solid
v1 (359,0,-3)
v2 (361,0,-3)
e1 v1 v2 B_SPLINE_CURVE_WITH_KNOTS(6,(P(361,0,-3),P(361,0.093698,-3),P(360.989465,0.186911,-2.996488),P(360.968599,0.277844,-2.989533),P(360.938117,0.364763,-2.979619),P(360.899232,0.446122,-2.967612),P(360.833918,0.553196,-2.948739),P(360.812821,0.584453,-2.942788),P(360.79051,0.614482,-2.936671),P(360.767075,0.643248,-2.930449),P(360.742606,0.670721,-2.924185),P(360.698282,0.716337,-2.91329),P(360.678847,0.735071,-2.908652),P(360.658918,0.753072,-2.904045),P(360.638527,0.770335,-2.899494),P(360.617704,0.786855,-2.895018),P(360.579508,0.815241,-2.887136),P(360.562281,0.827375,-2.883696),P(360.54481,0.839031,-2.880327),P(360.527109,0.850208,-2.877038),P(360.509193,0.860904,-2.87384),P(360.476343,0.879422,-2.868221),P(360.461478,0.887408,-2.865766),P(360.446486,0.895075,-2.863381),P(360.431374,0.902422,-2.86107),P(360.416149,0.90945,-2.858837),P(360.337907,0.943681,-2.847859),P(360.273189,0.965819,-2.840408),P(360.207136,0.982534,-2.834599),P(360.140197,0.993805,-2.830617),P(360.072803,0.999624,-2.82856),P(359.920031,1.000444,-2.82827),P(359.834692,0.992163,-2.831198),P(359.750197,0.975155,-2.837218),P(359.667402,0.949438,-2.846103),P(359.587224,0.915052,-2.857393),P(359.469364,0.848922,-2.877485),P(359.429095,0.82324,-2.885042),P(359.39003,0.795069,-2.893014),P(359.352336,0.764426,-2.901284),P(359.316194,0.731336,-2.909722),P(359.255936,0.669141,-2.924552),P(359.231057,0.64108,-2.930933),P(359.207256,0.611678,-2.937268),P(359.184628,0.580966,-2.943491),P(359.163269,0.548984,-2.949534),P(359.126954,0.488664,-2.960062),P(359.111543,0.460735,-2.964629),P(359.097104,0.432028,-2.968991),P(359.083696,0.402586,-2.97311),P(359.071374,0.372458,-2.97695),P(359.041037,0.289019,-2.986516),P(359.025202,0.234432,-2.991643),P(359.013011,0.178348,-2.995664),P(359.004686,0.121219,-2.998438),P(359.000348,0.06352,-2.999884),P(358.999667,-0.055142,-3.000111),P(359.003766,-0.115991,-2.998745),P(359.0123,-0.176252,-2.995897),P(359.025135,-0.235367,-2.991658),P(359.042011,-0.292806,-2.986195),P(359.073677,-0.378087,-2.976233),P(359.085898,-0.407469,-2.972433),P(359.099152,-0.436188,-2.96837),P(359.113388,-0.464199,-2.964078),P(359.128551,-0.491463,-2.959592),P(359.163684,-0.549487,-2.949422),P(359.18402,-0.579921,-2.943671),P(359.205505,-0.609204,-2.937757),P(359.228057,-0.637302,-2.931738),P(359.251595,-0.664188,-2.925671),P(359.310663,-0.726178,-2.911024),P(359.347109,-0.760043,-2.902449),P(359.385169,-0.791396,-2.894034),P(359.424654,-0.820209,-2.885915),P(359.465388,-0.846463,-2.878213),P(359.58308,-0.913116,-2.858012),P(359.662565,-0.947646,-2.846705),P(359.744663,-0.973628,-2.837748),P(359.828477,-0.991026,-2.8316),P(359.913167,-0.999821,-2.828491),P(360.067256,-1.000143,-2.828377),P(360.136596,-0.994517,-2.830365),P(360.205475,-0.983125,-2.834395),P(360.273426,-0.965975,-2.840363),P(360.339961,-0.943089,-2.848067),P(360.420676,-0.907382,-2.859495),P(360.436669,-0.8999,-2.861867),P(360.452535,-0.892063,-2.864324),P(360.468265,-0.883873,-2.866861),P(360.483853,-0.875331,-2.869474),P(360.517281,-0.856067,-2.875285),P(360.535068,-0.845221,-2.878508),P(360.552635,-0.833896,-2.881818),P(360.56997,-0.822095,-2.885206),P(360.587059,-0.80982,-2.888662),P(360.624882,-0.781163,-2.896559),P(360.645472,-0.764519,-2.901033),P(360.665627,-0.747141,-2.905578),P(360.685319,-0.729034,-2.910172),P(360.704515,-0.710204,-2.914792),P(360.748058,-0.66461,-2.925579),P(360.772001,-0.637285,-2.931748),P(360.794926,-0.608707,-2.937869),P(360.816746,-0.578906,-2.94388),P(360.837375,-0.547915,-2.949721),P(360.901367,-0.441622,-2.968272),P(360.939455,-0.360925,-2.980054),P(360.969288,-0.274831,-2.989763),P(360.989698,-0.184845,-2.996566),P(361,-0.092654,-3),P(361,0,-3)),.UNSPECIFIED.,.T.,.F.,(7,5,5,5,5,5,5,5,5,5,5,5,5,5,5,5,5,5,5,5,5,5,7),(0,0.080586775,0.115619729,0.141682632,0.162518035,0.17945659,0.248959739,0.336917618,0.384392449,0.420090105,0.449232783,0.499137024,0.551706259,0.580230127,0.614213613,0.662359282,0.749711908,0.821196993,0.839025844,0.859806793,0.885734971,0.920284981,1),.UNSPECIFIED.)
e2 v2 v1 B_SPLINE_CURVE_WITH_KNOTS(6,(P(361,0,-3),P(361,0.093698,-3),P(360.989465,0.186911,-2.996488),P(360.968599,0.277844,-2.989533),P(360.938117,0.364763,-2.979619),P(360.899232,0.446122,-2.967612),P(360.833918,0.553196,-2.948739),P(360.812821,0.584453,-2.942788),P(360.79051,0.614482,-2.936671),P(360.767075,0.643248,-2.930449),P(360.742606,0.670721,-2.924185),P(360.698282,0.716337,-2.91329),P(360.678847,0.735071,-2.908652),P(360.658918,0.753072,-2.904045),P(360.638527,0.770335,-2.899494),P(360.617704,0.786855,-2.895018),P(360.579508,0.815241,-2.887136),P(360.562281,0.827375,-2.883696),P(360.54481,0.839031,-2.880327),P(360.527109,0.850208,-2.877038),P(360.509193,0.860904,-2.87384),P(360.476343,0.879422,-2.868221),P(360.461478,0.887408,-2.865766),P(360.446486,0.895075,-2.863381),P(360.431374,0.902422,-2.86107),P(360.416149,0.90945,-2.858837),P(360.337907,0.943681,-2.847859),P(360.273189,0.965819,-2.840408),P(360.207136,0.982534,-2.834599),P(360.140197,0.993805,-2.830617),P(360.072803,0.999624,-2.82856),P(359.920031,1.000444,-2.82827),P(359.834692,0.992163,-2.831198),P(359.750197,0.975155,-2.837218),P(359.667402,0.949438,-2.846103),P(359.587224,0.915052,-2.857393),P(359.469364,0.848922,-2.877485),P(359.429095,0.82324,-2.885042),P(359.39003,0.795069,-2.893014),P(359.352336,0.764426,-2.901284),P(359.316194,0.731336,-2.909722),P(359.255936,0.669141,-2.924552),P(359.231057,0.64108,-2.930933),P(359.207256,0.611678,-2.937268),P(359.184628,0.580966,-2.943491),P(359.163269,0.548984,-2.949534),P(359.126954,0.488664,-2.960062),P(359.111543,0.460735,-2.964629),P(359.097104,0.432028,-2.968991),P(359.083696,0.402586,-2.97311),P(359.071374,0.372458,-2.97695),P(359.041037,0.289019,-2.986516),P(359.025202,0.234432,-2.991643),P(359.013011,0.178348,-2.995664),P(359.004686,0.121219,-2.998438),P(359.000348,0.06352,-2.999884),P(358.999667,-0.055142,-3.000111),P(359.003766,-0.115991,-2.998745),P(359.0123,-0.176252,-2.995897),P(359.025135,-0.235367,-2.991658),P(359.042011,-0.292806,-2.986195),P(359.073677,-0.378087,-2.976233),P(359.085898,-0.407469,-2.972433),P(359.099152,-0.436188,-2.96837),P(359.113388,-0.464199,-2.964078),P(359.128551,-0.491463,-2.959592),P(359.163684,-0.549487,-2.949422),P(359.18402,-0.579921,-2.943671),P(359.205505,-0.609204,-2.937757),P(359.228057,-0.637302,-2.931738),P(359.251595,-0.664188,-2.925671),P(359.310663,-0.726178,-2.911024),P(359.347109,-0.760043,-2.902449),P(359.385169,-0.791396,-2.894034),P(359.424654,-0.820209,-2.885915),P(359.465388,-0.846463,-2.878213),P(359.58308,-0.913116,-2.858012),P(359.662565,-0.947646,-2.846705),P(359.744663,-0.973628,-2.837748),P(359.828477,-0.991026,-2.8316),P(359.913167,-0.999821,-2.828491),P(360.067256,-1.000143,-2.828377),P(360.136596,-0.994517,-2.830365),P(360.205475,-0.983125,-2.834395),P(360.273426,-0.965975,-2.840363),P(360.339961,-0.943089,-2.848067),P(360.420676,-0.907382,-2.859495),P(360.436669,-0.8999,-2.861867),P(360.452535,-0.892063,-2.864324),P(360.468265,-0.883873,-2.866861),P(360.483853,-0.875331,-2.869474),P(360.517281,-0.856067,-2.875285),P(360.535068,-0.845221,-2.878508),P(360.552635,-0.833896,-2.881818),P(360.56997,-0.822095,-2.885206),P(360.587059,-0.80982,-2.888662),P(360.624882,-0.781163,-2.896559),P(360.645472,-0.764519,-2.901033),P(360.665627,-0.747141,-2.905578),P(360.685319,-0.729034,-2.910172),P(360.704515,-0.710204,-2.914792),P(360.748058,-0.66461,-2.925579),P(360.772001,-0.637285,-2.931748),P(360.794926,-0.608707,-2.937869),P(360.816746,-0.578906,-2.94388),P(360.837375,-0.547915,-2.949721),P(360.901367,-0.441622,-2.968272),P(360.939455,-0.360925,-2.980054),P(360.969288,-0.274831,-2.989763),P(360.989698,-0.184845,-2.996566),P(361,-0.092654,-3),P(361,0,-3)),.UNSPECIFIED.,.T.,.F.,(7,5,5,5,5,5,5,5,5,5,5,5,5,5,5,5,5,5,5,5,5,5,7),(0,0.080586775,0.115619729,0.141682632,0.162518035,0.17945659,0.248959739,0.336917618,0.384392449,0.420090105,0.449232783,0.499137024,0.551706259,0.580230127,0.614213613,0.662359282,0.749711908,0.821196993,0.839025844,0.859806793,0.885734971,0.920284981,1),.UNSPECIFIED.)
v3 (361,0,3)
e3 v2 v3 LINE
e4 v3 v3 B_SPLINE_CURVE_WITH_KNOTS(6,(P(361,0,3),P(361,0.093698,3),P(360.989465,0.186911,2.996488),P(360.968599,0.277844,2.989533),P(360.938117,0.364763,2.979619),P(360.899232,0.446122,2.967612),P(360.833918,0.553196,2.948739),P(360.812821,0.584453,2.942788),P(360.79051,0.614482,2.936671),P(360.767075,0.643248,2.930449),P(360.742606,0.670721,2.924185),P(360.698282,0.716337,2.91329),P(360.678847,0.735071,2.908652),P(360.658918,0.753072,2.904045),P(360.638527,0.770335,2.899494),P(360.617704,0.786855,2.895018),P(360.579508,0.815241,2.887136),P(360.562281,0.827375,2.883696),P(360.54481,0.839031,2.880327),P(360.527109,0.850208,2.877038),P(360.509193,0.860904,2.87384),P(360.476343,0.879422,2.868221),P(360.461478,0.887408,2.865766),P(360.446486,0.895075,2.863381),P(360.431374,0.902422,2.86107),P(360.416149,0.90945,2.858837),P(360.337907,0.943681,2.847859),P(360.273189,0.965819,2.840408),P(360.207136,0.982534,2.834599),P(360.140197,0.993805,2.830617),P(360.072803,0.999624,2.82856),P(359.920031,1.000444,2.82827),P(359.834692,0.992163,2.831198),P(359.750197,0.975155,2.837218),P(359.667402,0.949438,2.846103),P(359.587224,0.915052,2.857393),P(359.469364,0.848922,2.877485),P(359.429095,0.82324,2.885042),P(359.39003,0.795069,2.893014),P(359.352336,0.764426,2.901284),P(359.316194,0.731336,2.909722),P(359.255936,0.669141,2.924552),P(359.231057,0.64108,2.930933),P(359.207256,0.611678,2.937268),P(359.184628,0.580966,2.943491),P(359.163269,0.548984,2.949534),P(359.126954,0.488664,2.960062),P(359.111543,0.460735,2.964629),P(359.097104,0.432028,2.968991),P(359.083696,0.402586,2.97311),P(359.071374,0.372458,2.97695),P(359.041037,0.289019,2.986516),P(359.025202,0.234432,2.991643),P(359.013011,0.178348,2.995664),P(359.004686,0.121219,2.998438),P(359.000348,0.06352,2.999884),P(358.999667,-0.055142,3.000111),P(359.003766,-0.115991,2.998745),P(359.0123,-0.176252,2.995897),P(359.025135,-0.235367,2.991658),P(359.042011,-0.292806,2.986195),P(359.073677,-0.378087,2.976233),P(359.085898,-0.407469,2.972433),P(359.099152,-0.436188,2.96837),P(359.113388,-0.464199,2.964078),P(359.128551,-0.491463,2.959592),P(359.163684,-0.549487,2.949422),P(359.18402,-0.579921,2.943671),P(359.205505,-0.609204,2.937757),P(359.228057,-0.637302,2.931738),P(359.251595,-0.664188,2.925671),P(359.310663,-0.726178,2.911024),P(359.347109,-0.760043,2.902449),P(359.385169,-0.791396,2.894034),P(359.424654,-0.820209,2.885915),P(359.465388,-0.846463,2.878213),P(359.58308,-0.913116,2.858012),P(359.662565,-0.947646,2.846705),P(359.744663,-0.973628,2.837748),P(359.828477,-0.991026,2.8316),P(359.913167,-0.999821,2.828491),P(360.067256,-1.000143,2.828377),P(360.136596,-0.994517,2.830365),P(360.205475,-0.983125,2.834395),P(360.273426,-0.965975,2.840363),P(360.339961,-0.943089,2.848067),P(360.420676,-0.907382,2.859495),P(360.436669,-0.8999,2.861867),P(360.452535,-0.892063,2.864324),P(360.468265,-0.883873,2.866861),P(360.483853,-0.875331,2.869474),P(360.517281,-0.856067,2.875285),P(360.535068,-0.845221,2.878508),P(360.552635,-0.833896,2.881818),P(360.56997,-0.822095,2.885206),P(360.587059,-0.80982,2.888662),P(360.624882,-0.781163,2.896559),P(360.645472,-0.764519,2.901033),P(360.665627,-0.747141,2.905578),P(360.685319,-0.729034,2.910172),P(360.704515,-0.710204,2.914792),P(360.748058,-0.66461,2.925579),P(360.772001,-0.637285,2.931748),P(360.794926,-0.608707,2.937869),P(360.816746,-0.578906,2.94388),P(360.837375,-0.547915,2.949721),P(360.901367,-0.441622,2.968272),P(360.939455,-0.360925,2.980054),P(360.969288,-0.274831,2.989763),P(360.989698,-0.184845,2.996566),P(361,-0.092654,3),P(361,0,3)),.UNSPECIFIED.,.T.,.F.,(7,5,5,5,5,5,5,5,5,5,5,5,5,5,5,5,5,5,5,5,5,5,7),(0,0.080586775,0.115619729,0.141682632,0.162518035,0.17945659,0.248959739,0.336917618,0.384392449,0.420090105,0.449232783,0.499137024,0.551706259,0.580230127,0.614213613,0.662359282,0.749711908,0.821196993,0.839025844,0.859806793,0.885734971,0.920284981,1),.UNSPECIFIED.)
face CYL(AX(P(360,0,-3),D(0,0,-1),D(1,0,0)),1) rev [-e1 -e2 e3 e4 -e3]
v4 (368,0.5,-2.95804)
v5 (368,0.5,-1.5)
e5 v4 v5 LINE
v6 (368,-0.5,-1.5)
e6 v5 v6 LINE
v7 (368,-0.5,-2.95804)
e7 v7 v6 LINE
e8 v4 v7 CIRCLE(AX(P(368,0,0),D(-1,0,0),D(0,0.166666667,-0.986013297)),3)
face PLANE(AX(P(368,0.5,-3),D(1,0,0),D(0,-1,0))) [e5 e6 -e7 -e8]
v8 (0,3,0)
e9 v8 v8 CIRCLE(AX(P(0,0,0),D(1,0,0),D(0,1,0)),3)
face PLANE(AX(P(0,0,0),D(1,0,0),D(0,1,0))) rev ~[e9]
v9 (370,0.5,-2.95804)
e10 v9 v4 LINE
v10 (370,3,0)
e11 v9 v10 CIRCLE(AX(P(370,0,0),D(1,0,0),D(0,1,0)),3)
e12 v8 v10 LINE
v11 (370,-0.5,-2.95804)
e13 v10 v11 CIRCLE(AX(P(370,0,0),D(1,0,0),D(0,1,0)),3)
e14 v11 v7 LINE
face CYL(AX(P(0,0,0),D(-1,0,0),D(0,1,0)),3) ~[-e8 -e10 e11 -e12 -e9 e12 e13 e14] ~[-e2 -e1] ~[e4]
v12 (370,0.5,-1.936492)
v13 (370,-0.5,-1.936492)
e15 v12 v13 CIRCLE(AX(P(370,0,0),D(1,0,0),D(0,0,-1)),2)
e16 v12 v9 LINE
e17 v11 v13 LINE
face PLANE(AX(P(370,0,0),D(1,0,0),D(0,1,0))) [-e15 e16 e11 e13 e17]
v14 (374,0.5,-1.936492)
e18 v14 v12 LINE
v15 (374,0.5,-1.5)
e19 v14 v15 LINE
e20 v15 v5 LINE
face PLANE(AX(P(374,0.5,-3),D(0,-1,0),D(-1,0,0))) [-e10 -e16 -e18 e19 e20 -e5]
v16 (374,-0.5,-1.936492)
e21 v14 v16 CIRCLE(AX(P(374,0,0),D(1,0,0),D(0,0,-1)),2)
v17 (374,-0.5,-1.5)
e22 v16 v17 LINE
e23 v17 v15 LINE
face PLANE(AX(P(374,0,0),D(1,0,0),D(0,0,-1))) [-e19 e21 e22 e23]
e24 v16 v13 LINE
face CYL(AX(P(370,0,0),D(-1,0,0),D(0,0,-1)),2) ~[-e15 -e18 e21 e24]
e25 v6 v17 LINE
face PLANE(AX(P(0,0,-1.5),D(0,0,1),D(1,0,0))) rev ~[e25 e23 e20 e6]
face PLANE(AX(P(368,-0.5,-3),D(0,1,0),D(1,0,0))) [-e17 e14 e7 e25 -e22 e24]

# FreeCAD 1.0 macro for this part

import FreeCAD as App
import Part
import Sketcher

V = App.Vector
Q = App.Units.Quantity


def add_polygon(sketch, points):
    """Adds a closed chain of lines whose ends are joined by coincident constraints."""
    first, n = sketch.GeometryCount, len(points)
    for a, b in zip(points, points[1:] + points[:1]):
        sketch.addGeometry(Part.LineSegment(App.Vector(*a, 0), App.Vector(*b, 0)), False)
    for i in range(n):
        sketch.addConstraint(Sketcher.Constraint("Coincident", first + i, 2, first + (i + 1) % n, 1))

doc = App.newDocument("Part")
body = doc.addObject("PartDesign::Body", "Body")

sketch1 = body.newObject("Sketcher::SketchObject", "Sketch")
sketch1.AttachmentSupport = (doc.getObject("YZ_Plane"), [""])
sketch1.MapMode = "FlatFace"
sketch1.addGeometry(Part.Circle(V(0, 0, 0), V(0, 0, 1), 3), False)
sketch1.addConstraint(Sketcher.Constraint("Coincident", 0, 3, -1, 1))
sketch1.addConstraint(Sketcher.Constraint("Diameter", 0, Q("6 mm")))
pad1 = body.newObject("PartDesign::Pad", "Pad")
pad1.Profile = sketch1
pad1.Length = 370

sketch2 = body.newObject("Sketcher::SketchObject", "Sketch001")
sketch2.AttachmentSupport = (doc.getObject("YZ_Plane"), [""])
sketch2.MapMode = "FlatFace"
sketch2.AttachmentOffset = App.Placement(V(0, 0, 370), App.Rotation())
sketch2.addGeometry(Part.Circle(V(0, 0, 0), V(0, 0, 1), 2), False)
sketch2.addConstraint(Sketcher.Constraint("Coincident", 0, 3, -1, 1))
sketch2.addConstraint(Sketcher.Constraint("Diameter", 0, Q("4 mm")))
pad2 = body.newObject("PartDesign::Pad", "Pad001")
pad2.Profile = sketch2
pad2.Length = 4

sketch3 = body.newObject("Sketcher::SketchObject", "Sketch002")
sketch3.AttachmentSupport = (doc.getObject("XY_Plane"), [""])
sketch3.MapMode = "FlatFace"
sketch3.AttachmentOffset = App.Placement(V(0, 0, -3), App.Rotation())
add_polygon(sketch3, [(374, -0.5), (374, 0.5), (368, 0.5), (368, -0.5)])
sketch3.addConstraint(Sketcher.Constraint("Vertical", 0))
sketch3.addConstraint(Sketcher.Constraint("Horizontal", 1))
sketch3.addConstraint(Sketcher.Constraint("Vertical", 2))
sketch3.addConstraint(Sketcher.Constraint("Horizontal", 3))
sketch3.addConstraint(Sketcher.Constraint("DistanceX", 1, 2, 1, 1, Q("6 mm")))
sketch3.addConstraint(Sketcher.Constraint("DistanceY", 0, 1, 0, 2, Q("1 mm")))
sketch3.addConstraint(Sketcher.Constraint("DistanceX", -1, 1, 0, 2, Q("374 mm")))
sketch3.addConstraint(Sketcher.Constraint("DistanceY", -1, 1, 0, 2, Q("0.5 mm")))
pocket1 = body.newObject("PartDesign::Pocket", "Pocket")
pocket1.Profile = sketch3
pocket1.Length = 1.5
pocket1.Reversed = True

sketch4 = body.newObject("Sketcher::SketchObject", "Sketch003")
sketch4.AttachmentSupport = (doc.getObject("XY_Plane"), [""])
sketch4.MapMode = "FlatFace"
sketch4.AttachmentOffset = App.Placement(V(0, 0, -3), App.Rotation())
sketch4.addGeometry(Part.Circle(V(360, 0, 0), V(0, 0, 1), 1), False)
sketch4.addConstraint(Sketcher.Constraint("PointOnObject", 0, 3, -1))
sketch4.addConstraint(Sketcher.Constraint("Diameter", 0, Q("2 mm")))
sketch4.addConstraint(Sketcher.Constraint("DistanceX", -1, 1, 0, 3, Q("360 mm")))
pocket2 = body.newObject("PartDesign::Pocket", "Pocket001")
pocket2.Profile = sketch4
pocket2.Length = 6
pocket2.Reversed = True

doc.recompute()
